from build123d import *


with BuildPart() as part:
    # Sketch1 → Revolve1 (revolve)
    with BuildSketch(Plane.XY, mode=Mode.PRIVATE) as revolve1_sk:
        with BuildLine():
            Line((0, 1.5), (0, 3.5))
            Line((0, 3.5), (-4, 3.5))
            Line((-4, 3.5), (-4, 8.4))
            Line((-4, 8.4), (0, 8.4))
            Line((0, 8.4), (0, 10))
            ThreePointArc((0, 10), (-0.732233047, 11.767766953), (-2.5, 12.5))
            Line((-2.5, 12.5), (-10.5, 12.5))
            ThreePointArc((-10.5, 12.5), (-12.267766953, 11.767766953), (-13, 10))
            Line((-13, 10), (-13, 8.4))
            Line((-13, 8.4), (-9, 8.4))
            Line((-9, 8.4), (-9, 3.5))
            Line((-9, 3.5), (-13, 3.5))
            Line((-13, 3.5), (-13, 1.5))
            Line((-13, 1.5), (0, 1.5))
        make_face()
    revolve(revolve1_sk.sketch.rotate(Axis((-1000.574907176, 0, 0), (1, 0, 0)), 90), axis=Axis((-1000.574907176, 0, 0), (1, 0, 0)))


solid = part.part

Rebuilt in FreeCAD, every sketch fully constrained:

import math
import FreeCAD as App
import Part
import Sketcher

doc = App.newDocument("Part")
body = doc.addObject("PartDesign::Body", "Body")

# Sketch on XY plane
sketch1 = body.newObject("Sketcher::SketchObject", "Sketch")
sketch1.AttachmentSupport = (doc.getObject("XY_Plane"), [""])
sketch1.MapMode = "FlatFace"
sketch1.addGeometry(Part.LineSegment(App.Vector(0, 1.5, 0), App.Vector(0, 3.5, 0)), False)
sketch1.addGeometry(Part.LineSegment(App.Vector(0, 3.5, 0), App.Vector(-4, 3.5, 0)), False)
sketch1.addGeometry(Part.LineSegment(App.Vector(-4, 3.5, 0), App.Vector(-4, 8.4, 0)), False)
sketch1.addGeometry(Part.LineSegment(App.Vector(-4, 8.4, 0), App.Vector(0, 8.4, 0)), False)
sketch1.addGeometry(Part.LineSegment(App.Vector(0, 8.4, 0), App.Vector(0, 10, 0)), False)
sketch1.addGeometry(Part.ArcOfCircle(Part.Circle(App.Vector(-2.5, 10, 0), App.Vector(0, 0, 1), 2.5), math.radians(0), math.radians(90)), False)
sketch1.addGeometry(Part.LineSegment(App.Vector(-2.5, 12.5, 0), App.Vector(-10.5, 12.5, 0)), False)
sketch1.addGeometry(Part.ArcOfCircle(Part.Circle(App.Vector(-10.5, 10, 0), App.Vector(0, 0, 1), 2.5), math.radians(90), math.radians(180)), False)
sketch1.addGeometry(Part.LineSegment(App.Vector(-13, 10, 0), App.Vector(-13, 8.4, 0)), False)
sketch1.addGeometry(Part.LineSegment(App.Vector(-13, 8.4, 0), App.Vector(-9, 8.4, 0)), False)
sketch1.addGeometry(Part.LineSegment(App.Vector(-9, 8.4, 0), App.Vector(-9, 3.5, 0)), False)
sketch1.addGeometry(Part.LineSegment(App.Vector(-9, 3.5, 0), App.Vector(-13, 3.5, 0)), False)
sketch1.addGeometry(Part.LineSegment(App.Vector(-13, 3.5, 0), App.Vector(-13, 1.5, 0)), False)
sketch1.addGeometry(Part.LineSegment(App.Vector(-13, 1.5, 0), App.Vector(0, 1.5, 0)), False)
sketch1.addConstraint(Sketcher.Constraint("Coincident", 0, 2, 1, 1))
sketch1.addConstraint(Sketcher.Constraint("Coincident", 1, 2, 2, 1))
sketch1.addConstraint(Sketcher.Constraint("Coincident", 2, 2, 3, 1))
sketch1.addConstraint(Sketcher.Constraint("Coincident", 3, 2, 4, 1))
sketch1.addConstraint(Sketcher.Constraint("Tangent", 4, 2, 5, 1))
sketch1.addConstraint(Sketcher.Constraint("Tangent", 5, 2, 6, 1))
sketch1.addConstraint(Sketcher.Constraint("Tangent", 6, 2, 7, 1))
sketch1.addConstraint(Sketcher.Constraint("Tangent", 7, 2, 8, 1))
sketch1.addConstraint(Sketcher.Constraint("Coincident", 8, 2, 9, 1))
sketch1.addConstraint(Sketcher.Constraint("Coincident", 9, 2, 10, 1))
sketch1.addConstraint(Sketcher.Constraint("Coincident", 10, 2, 11, 1))
sketch1.addConstraint(Sketcher.Constraint("Coincident", 11, 2, 12, 1))
sketch1.addConstraint(Sketcher.Constraint("Coincident", 12, 2, 13, 1))
sketch1.addConstraint(Sketcher.Constraint("Coincident", 13, 2, 0, 1))
sketch1.addConstraint(Sketcher.Constraint("Vertical", 0))
sketch1.addConstraint(Sketcher.Constraint("Horizontal", 1))
sketch1.addConstraint(Sketcher.Constraint("Vertical", 2))
sketch1.addConstraint(Sketcher.Constraint("Horizontal", 3))
sketch1.addConstraint(Sketcher.Constraint("Vertical", 4))
sketch1.addConstraint(Sketcher.Constraint("Horizontal", 6))
sketch1.addConstraint(Sketcher.Constraint("Vertical", 8))
sketch1.addConstraint(Sketcher.Constraint("Horizontal", 9))
sketch1.addConstraint(Sketcher.Constraint("Vertical", 10))
sketch1.addConstraint(Sketcher.Constraint("Horizontal", 11))
sketch1.addConstraint(Sketcher.Constraint("Vertical", 12))
sketch1.addConstraint(Sketcher.Constraint("Horizontal", 13))
sketch1.addConstraint(Sketcher.Constraint("Equal", 5, 7))
sketch1.addConstraint(Sketcher.Constraint("PointOnObject", 0, 2, -2))
sketch1.addConstraint(Sketcher.Constraint("PointOnObject", 3, 2, -2))
sketch1.addConstraint(Sketcher.Constraint("Horizontal", 3, 2, 8, 2))
sketch1.addConstraint(Sketcher.Constraint("Horizontal", 1, 2, 10, 2))
sketch1.addConstraint(Sketcher.Constraint("Vertical", 8, 2, 11, 2))
sketch1.addConstraint(Sketcher.Constraint("Equal", 3, 9))
sketch1.addConstraint(Sketcher.Constraint("Radius", 5, 2.5))
sketch1.addConstraint(Sketcher.Constraint("DistanceX", 1, 2, 1, 1, 4.0))
sketch1.addConstraint(Sketcher.Constraint("DistanceX", 6, 2, 6, 1, 8.0))
sketch1.addConstraint(Sketcher.Constraint("DistanceY", 0, 1, 0, 2, 2.0))
sketch1.addConstraint(Sketcher.Constraint("DistanceY", 2, 1, 2, 2, 4.9))
sketch1.addConstraint(Sketcher.Constraint("DistanceY", 4, 1, 4, 2, 1.6))
sketch1.addConstraint(Sketcher.Constraint("DistanceY", -1, 1, 5, 3, 10.0))
revolution = body.newObject("PartDesign::Revolution", "Revolution")
revolution.Profile = sketch1
revolution.ReferenceAxis = (sketch1, ["H_Axis"])
revolution.Angle = 360

doc.recompute()
